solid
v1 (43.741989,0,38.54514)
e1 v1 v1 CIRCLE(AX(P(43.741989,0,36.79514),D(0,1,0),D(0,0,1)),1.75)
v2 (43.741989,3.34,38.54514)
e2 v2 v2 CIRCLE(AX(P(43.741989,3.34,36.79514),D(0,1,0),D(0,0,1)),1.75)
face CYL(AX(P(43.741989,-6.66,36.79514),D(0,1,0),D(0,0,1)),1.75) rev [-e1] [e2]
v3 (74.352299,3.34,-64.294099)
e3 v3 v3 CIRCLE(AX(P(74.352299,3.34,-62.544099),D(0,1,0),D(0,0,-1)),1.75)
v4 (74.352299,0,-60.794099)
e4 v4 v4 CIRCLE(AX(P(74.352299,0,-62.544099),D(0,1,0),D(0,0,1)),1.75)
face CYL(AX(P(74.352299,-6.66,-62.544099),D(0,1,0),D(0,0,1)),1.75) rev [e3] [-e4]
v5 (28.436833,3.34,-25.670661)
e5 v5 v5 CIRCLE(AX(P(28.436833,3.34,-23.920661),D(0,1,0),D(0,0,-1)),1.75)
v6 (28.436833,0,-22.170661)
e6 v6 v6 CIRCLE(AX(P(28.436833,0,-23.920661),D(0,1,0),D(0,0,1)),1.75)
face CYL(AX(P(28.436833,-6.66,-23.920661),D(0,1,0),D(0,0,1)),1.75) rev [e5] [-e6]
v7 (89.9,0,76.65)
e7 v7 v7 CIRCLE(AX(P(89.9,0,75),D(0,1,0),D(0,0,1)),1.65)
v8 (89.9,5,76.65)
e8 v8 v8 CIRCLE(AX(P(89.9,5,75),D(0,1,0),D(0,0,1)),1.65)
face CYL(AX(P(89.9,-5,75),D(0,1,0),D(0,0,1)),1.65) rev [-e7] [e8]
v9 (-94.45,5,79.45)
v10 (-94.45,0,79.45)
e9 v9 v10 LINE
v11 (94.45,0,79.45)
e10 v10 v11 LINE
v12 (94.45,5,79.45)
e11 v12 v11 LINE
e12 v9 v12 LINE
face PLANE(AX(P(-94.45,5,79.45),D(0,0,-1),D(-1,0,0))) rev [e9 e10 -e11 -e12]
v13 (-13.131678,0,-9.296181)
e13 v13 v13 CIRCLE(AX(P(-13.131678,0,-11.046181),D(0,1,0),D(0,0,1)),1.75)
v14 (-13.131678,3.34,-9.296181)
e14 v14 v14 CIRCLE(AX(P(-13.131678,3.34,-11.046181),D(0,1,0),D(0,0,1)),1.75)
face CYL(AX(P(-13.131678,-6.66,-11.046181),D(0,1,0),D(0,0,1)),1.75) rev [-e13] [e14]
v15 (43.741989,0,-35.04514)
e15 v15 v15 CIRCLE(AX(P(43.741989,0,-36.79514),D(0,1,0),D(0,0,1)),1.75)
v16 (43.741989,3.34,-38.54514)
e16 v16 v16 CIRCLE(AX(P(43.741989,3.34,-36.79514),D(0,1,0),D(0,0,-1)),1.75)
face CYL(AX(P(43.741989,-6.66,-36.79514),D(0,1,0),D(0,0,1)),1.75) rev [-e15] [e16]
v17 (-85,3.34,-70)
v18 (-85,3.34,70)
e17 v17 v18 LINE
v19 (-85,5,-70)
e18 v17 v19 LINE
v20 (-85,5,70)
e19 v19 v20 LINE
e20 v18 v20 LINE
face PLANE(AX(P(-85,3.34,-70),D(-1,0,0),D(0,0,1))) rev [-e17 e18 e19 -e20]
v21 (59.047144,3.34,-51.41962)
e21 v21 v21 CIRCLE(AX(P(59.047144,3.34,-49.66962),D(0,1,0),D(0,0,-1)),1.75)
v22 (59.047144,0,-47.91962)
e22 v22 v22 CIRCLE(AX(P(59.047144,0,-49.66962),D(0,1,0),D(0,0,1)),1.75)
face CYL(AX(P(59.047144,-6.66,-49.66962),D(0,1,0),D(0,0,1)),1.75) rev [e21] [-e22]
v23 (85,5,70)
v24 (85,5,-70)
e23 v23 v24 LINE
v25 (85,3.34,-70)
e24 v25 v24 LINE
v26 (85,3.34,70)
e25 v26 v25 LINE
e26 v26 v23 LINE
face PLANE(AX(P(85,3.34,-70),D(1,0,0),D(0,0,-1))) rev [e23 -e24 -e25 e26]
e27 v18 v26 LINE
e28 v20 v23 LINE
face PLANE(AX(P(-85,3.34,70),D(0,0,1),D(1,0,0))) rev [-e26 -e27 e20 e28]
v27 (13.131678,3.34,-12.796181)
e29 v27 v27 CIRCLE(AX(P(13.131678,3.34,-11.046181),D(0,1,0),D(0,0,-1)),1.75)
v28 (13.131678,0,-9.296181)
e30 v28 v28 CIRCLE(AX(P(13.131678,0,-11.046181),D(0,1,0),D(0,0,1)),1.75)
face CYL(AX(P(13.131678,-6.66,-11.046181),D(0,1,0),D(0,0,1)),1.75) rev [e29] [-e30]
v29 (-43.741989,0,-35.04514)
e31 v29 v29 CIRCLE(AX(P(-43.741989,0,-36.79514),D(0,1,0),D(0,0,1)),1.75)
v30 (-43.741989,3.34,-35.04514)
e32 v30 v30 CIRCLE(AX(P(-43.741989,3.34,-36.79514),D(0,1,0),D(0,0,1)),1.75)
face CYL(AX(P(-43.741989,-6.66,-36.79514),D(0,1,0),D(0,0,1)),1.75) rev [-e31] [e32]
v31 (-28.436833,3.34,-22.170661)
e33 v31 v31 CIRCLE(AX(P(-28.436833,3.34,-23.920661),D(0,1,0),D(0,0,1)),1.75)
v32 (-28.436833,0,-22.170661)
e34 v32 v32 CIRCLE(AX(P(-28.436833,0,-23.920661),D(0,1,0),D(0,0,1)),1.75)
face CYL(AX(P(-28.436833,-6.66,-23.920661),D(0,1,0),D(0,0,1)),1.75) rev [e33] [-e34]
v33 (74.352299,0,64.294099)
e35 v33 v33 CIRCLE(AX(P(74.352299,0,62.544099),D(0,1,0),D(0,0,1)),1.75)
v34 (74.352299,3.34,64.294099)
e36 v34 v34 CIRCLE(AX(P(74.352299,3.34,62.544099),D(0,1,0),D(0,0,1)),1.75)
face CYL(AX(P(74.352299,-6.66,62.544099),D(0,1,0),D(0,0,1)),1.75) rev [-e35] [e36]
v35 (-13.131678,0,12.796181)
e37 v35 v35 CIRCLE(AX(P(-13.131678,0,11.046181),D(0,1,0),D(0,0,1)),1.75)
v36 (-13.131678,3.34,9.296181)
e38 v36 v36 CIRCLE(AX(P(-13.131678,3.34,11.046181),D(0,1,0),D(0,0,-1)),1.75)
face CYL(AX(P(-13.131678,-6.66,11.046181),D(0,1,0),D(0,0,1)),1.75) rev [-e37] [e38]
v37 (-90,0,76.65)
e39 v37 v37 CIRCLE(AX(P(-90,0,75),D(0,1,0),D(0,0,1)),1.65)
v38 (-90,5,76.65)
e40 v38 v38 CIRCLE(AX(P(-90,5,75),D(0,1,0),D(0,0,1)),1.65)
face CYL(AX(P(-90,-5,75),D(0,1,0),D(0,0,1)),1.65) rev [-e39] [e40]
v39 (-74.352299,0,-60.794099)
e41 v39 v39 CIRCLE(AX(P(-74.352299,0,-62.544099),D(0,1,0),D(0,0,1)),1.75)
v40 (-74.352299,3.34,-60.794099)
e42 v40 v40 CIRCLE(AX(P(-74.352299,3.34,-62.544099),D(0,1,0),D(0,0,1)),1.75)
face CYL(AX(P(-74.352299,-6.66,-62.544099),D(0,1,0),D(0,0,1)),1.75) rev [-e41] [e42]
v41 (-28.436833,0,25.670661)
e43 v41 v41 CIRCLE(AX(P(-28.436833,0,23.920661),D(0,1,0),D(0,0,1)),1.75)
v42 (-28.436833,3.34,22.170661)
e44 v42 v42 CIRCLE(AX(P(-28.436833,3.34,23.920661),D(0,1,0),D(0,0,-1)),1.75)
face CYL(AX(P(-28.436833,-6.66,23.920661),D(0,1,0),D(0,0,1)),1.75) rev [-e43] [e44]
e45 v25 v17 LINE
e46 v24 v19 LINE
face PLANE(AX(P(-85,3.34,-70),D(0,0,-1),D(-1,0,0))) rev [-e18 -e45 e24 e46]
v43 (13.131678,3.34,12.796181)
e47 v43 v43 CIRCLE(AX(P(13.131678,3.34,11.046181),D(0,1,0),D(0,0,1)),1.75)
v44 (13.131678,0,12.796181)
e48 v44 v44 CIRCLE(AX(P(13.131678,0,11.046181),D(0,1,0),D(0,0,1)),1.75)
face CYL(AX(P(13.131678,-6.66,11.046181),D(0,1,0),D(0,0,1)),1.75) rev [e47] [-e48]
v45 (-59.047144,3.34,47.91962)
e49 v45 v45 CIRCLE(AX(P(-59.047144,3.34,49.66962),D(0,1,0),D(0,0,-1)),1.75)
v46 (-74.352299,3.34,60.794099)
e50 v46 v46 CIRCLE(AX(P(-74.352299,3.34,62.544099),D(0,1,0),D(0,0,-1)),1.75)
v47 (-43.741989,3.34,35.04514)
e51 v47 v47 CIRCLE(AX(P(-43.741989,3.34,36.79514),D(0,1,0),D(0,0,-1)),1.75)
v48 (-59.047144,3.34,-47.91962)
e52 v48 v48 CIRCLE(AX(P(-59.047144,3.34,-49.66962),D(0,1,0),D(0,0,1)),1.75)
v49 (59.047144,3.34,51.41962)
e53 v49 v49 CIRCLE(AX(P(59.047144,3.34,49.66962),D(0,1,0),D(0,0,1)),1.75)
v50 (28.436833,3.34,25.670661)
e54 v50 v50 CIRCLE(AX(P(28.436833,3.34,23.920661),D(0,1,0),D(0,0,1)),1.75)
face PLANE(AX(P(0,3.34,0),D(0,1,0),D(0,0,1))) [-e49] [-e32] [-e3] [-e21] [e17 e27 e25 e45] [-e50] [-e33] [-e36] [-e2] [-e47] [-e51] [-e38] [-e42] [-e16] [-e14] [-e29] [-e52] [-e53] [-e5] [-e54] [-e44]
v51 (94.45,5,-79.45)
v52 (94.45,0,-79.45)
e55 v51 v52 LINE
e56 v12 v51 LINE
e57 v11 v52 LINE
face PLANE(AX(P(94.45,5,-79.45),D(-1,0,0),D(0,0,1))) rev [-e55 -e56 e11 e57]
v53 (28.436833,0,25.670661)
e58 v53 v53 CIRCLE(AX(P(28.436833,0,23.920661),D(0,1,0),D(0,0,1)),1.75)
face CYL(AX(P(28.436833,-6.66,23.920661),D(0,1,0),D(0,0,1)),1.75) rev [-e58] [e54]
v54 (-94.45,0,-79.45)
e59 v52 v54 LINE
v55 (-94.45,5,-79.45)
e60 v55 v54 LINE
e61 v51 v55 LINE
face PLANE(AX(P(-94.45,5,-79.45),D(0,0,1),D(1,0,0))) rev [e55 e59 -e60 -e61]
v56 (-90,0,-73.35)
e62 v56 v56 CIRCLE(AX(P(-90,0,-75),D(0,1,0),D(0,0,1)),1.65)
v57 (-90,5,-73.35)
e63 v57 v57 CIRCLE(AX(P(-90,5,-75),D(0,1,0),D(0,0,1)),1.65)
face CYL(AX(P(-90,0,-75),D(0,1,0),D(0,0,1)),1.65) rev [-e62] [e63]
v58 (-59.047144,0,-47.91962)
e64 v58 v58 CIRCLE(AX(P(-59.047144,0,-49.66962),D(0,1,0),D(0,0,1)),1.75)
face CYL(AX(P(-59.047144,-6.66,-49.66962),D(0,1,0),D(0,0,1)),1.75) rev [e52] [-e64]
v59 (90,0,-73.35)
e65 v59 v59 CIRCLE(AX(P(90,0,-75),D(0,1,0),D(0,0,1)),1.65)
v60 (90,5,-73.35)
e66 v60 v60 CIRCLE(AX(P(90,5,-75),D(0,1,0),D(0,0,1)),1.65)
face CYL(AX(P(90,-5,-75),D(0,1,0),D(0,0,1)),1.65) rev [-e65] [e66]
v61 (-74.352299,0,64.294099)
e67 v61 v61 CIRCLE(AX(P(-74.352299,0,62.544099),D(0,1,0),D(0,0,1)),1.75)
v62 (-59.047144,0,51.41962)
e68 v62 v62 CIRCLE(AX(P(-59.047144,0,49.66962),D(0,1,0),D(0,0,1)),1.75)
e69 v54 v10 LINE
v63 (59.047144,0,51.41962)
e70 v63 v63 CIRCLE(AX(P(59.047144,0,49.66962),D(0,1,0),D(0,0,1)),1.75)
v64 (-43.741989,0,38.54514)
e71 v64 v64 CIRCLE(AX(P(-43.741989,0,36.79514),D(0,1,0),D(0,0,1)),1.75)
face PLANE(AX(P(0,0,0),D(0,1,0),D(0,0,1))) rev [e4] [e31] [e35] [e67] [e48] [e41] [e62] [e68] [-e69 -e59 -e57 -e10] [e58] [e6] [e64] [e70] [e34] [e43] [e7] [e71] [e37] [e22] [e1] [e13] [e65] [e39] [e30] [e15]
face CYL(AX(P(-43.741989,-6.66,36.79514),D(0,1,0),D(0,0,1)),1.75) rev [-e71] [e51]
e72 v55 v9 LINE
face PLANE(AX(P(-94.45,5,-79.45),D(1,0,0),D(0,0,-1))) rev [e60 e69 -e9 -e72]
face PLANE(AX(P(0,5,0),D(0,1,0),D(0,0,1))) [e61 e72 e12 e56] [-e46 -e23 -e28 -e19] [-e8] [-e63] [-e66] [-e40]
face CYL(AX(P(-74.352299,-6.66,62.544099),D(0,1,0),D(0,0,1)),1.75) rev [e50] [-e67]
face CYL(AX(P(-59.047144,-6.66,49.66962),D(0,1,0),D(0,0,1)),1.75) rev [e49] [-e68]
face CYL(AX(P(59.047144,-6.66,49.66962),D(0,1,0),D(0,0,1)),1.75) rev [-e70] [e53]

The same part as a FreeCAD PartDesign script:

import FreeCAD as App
import Part
import Sketcher

V = App.Vector
Q = App.Units.Quantity

doc = App.newDocument("Part")
params = doc.addObject("Spreadsheet::Sheet", "Params")
for row, (alias, value) in enumerate([
    ("sketch1_width", "188.9 mm"),
    ("sketch1_height", "158.9 mm"),
    ("pad1_length", "5 mm"),
    ("sketch2_width", "170 mm"),
    ("sketch2_height", "140 mm"),
    ("pocket1_length", "1.66 mm"),
    ("sketch3_diameter", "3.3 mm"),
    ("pocket2_length", "5 mm"),
    ("sketch4_diameter", "3.3 mm"),
    ("pocket3_length", "10 mm"),
    ("sketch5_diameter", "3.5 mm"),
    ("pocket4_length", "10 mm"),
], start=1):
    params.set(f"A{row}", alias)
    params.set(f"B{row}", "=" + value)
    params.setAlias(f"B{row}", alias)

body = doc.addObject("PartDesign::Body", "Body")

sketch1 = body.newObject("Sketcher::SketchObject", "Sketch")
sketch1.AttachmentSupport = (doc.getObject("XZ_Plane"), [""])
sketch1.MapMode = "FlatFace"
sketch1.addGeometry([
    Part.LineSegment(V(-94, -79, 0), V(-94, 79, 0)),
    Part.LineSegment(V(-94, 79, 0), V(94, 79, 0)),
    Part.LineSegment(V(94, 79, 0), V(94, -79, 0)),
    Part.LineSegment(V(94, -79, 0), V(-94, -79, 0)),
], False)
sketch1.addConstraint([
    Sketcher.Constraint("Coincident", 0, 2, 1, 1),
    Sketcher.Constraint("Coincident", 1, 2, 2, 1),
    Sketcher.Constraint("Coincident", 2, 2, 3, 1),
    Sketcher.Constraint("Coincident", 3, 2, 0, 1),
    Sketcher.Constraint("Vertical", 0),
    Sketcher.Constraint("Horizontal", 1),
    Sketcher.Constraint("Vertical", 2),
    Sketcher.Constraint("Horizontal", 3),
    Sketcher.Constraint("Symmetric", 0, 2, 2, 2, -1, 1),
    Sketcher.Constraint("DistanceX", 1, 1, 1, 2, Q("188.9 mm")),
    Sketcher.Constraint("DistanceY", 0, 1, 0, 2, Q("158.9 mm")),
])
sketch1.setExpression("Constraints[9]", "Params.sketch1_width")
sketch1.setExpression("Constraints[10]", "Params.sketch1_height")
pad1 = body.newObject("PartDesign::Pad", "Pad")
pad1.Profile = sketch1
pad1.setExpression("Length", "Params.pad1_length")
pad1.Reversed = True

sketch2 = body.newObject("Sketcher::SketchObject", "Sketch001")
sketch2.AttachmentSupport = (doc.getObject("XZ_Plane"), [""])
sketch2.MapMode = "FlatFace"
sketch2.AttachmentOffset = App.Placement(V(0, 0, -5), App.Rotation())
sketch2.addGeometry([
    Part.LineSegment(V(-85, -70, 0), V(-85, 70, 0)),
    Part.LineSegment(V(-85, 70, 0), V(85, 70, 0)),
    Part.LineSegment(V(85, 70, 0), V(85, -70, 0)),
    Part.LineSegment(V(85, -70, 0), V(-85, -70, 0)),
], False)
sketch2.addConstraint([
    Sketcher.Constraint("Coincident", 0, 2, 1, 1),
    Sketcher.Constraint("Coincident", 1, 2, 2, 1),
    Sketcher.Constraint("Coincident", 2, 2, 3, 1),
    Sketcher.Constraint("Coincident", 3, 2, 0, 1),
    Sketcher.Constraint("Vertical", 0),
    Sketcher.Constraint("Horizontal", 1),
    Sketcher.Constraint("Vertical", 2),
    Sketcher.Constraint("Horizontal", 3),
    Sketcher.Constraint("Symmetric", 0, 2, 2, 2, -1, 1),
    Sketcher.Constraint("DistanceX", 1, 1, 1, 2, Q("170 mm")),
    Sketcher.Constraint("DistanceY", 0, 1, 0, 2, Q("140 mm")),
])
sketch2.setExpression("Constraints[9]", "Params.sketch2_width")
sketch2.setExpression("Constraints[10]", "Params.sketch2_height")
pocket1 = body.newObject("PartDesign::Pocket", "Pocket")
pocket1.Profile = sketch2
pocket1.setExpression("Length", "Params.pocket1_length")
pocket1.Reversed = True

sketch3 = body.newObject("Sketcher::SketchObject", "Sketch002")
sketch3.AttachmentSupport = (doc.getObject("XZ_Plane"), [""])
sketch3.MapMode = "FlatFace"
sketch3.AttachmentOffset = App.Placement(V(0, 0, -5), App.Rotation())
sketch3.addGeometry(Part.Circle(V(-90, -75, 0), V(0, 0, 1), 1.6), False)
sketch3.addConstraint([
    Sketcher.Constraint("Diameter", 0, Q("3.3 mm")),
    Sketcher.Constraint("DistanceX", 0, 3, -1, 1, Q("90 mm")),
    Sketcher.Constraint("DistanceY", 0, 3, -1, 1, Q("75 mm")),
])
sketch3.setExpression("Constraints[0]", "Params.sketch3_diameter")
pocket2 = body.newObject("PartDesign::Pocket", "Pocket001")
pocket2.Profile = sketch3
pocket2.setExpression("Length", "Params.pocket2_length")
pocket2.Reversed = True

sketch4 = body.newObject("Sketcher::SketchObject", "Sketch003")
sketch4.AttachmentSupport = (doc.getObject("XZ_Plane"), [""])
sketch4.MapMode = "FlatFace"
sketch4.AttachmentOffset = App.Placement(V(0, 0, -5), App.Rotation())
sketch4.addGeometry([
    Part.Circle(V(-90, 75, 0), V(0, 0, 1), 1.6),
    Part.Circle(V(89.9, 75, 0), V(0, 0, 1), 1.6),
    Part.Circle(V(90, -75, 0), V(0, 0, 1), 1.6),
], False)
sketch4.addConstraint([
    Sketcher.Constraint("Equal", 0, 1),
    Sketcher.Constraint("Equal", 1, 2),
    Sketcher.Constraint("Symmetric", 0, 3, 2, 3, -1, 1),
    Sketcher.Constraint("Horizontal", 0, 3, 1, 3),
    Sketcher.Constraint("Diameter", 0, Q("3.3 mm")),
    Sketcher.Constraint("DistanceX", 0, 3, -1, 1, Q("90 mm")),
    Sketcher.Constraint("DistanceY", -1, 1, 0, 3, Q("75 mm")),
    Sketcher.Constraint("DistanceX", -1, 1, 1, 3, Q("89.9 mm")),
])
sketch4.setExpression("Constraints[4]", "Params.sketch4_diameter")
pocket3 = body.newObject("PartDesign::Pocket", "Pocket002")
pocket3.Profile = sketch4
pocket3.setExpression("Length", "Params.pocket3_length")
pocket3.Reversed = True

sketch5 = body.newObject("Sketcher::SketchObject", "Sketch004")
sketch5.AttachmentSupport = (doc.getObject("XZ_Plane"), [""])
sketch5.MapMode = "FlatFace"
sketch5.AttachmentOffset = App.Placement(V(0, 0, -3.34), App.Rotation())
sketch5.addGeometry([
    Part.Circle(V(-74.4, -62.5, 0), V(0, 0, 1), 1.8),
    Part.Circle(V(74.4, 62.5, 0), V(0, 0, 1), 1.8),
    Part.Circle(V(-59, -49.7, 0), V(0, 0, 1), 1.8),
    Part.Circle(V(-43.7, -36.8, 0), V(0, 0, 1), 1.8),
    Part.Circle(V(-28.4, -23.9, 0), V(0, 0, 1), 1.8),
    Part.Circle(V(-13.1, -11, 0), V(0, 0, 1), 1.8),
    Part.Circle(V(13.1, -11, 0), V(0, 0, 1), 1.8),
    Part.Circle(V(28.4, -23.9, 0), V(0, 0, 1), 1.8),
    Part.Circle(V(43.7, -36.8, 0), V(0, 0, 1), 1.8),
    Part.Circle(V(59, -49.7, 0), V(0, 0, 1), 1.8),
    Part.Circle(V(74.4, -62.5, 0), V(0, 0, 1), 1.8),
    Part.Circle(V(59, 49.7, 0), V(0, 0, 1), 1.8),
    Part.Circle(V(43.7, 36.8, 0), V(0, 0, 1), 1.8),
    Part.Circle(V(28.4, 23.9, 0), V(0, 0, 1), 1.8),
    Part.Circle(V(13.1, 11, 0), V(0, 0, 1), 1.8),
    Part.Circle(V(-13.1, 11, 0), V(0, 0, 1), 1.8),
    Part.Circle(V(-28.4, 23.9, 0), V(0, 0, 1), 1.8),
    Part.Circle(V(-43.7, 36.8, 0), V(0, 0, 1), 1.8),
    Part.Circle(V(-59, 49.7, 0), V(0, 0, 1), 1.8),
    Part.Circle(V(-74.4, 62.5, 0), V(0, 0, 1), 1.8),
], False)
sketch5.addConstraint([
    Sketcher.Constraint("Equal", 0, 1),
    Sketcher.Constraint("Equal", 1, 2),
    Sketcher.Constraint("Equal", 2, 3),
    Sketcher.Constraint("Equal", 3, 4),
    Sketcher.Constraint("Equal", 4, 5),
    Sketcher.Constraint("Equal", 5, 6),
    Sketcher.Constraint("Equal", 6, 7),
    Sketcher.Constraint("Equal", 7, 8),
    Sketcher.Constraint("Equal", 8, 9),
    Sketcher.Constraint("Equal", 9, 10),
    Sketcher.Constraint("Equal", 10, 11),
    Sketcher.Constraint("Equal", 11, 12),
    Sketcher.Constraint("Equal", 12, 13),
    Sketcher.Constraint("Equal", 13, 14),
    Sketcher.Constraint("Equal", 14, 15),
    Sketcher.Constraint("Equal", 15, 16),
    Sketcher.Constraint("Equal", 16, 17),
    Sketcher.Constraint("Equal", 17, 18),
    Sketcher.Constraint("Equal", 18, 19),
    Sketcher.Constraint("Symmetric", 0, 3, 1, 3, -1, 1),
    Sketcher.Constraint("Symmetric", 2, 3, 11, 3, -1, 1),
    Sketcher.Constraint("Symmetric", 3, 3, 12, 3, -1, 1),
    Sketcher.Constraint("Symmetric", 4, 3, 13, 3, -1, 1),
    Sketcher.Constraint("Symmetric", 5, 3, 14, 3, -1, 1),
    Sketcher.Constraint("Symmetric", 6, 3, 15, 3, -1, 1),
    Sketcher.Constraint("Symmetric", 7, 3, 16, 3, -1, 1),
    Sketcher.Constraint("Symmetric", 8, 3, 17, 3, -1, 1),
    Sketcher.Constraint("Symmetric", 9, 3, 18, 3, -1, 1),
    Sketcher.Constraint("Symmetric", 10, 3, 19, 3, -1, 1),
    Sketcher.Constraint("Symmetric", 5, 3, 6, 3, -2),
    Sketcher.Constraint("Symmetric", 4, 3, 7, 3, -2),
    Sketcher.Constraint("Symmetric", 3, 3, 8, 3, -2),
    Sketcher.Constraint("Symmetric", 2, 3, 9, 3, -2),
    Sketcher.Constraint("Symmetric", 0, 3, 10, 3, -2),
    Sketcher.Constraint("Diameter", 0, Q("3.5 mm")),
    Sketcher.Constraint("DistanceX", 0, 3, -1, 1, Q("74.352299 mm")),
    Sketcher.Constraint("DistanceY", 0, 3, -1, 1, Q("62.544099 mm")),
    Sketcher.Constraint("DistanceY", 6, 3, 11, 3, Q("60.715801 mm")),
    Sketcher.Constraint("DistanceY", 7, 3, 12, 3, Q("60.715801 mm")),
    Sketcher.Constraint("DistanceY", 2, 3, -1, 1, Q("49.66962 mm")),
    Sketcher.Constraint("DistanceX", 3, 3, -1, 1, Q("43.741989 mm")),
    Sketcher.Constraint("DistanceY", 3, 3, -1, 1, Q("36.79514 mm")),
    Sketcher.Constraint("DistanceX", 5, 3, -1, 1, Q("13.131678 mm")),
    Sketcher.Constraint("DistanceX", 2, 3, 4, 3, Q("30.610311 mm")),
    Sketcher.Constraint("DistanceX", 4, 3, 6, 3, Q("41.568512 mm")),
])
sketch5.setExpression("Constraints[34]", "Params.sketch5_diameter")
pocket4 = body.newObject("PartDesign::Pocket", "Pocket003")
pocket4.Profile = sketch5
pocket4.setExpression("Length", "Params.pocket4_length")
pocket4.Reversed = True

doc.recompute()
